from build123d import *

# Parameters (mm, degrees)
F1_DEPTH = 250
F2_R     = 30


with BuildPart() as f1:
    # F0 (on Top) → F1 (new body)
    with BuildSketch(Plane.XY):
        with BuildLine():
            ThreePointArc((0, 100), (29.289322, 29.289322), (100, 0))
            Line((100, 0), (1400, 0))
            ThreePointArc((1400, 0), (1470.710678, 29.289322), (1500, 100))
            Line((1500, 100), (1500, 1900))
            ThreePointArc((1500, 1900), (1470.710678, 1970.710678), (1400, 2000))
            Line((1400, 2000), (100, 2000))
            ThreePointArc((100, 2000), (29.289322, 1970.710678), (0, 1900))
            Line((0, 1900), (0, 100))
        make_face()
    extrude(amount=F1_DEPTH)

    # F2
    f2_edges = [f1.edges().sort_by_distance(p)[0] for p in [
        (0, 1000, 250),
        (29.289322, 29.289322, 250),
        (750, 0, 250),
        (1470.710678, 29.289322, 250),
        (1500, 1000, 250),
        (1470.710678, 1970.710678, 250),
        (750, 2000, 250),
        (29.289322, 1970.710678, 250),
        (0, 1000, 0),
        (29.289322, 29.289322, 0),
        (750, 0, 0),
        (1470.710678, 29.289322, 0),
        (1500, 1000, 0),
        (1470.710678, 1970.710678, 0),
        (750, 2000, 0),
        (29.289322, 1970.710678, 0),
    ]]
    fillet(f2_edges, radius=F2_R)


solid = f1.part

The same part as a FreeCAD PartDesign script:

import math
import FreeCAD as App
import Part
import Sketcher

V = App.Vector


def edges_at(feature, points):
    """Names of the edges that pass closest to the given points."""
    edges = feature.Shape.Edges
    near = lambda p: min(range(len(edges)), key=lambda i: edges[i].distToShape(Part.Vertex(*p))[0])
    return sorted({f"Edge{near(p) + 1}" for p in points})

doc = App.newDocument("Part")
body = doc.addObject("PartDesign::Body", "Body")

# Sketch on XY plane
sketch1 = doc.addObject("Sketcher::SketchObject", "Sketch")
body.addObject(sketch1)
sketch1.AttachmentSupport = (doc.XY_Plane, [""])
sketch1.MapMode = "FlatFace"
sketch1.addGeometry([
    Part.ArcOfCircle(Part.Circle(V(100, 100, 0), V(0, 0, 1), 100), math.radians(-180), math.radians(-90)),  # 0
    Part.LineSegment(V(100, 0, 0), V(1400, 0, 0)),  # 1
    Part.ArcOfCircle(Part.Circle(V(1400, 100, 0), V(0, 0, 1), 100), math.radians(-90), math.radians(0)),  # 2
    Part.LineSegment(V(1500, 100, 0), V(1500, 1900, 0)),  # 3
    Part.ArcOfCircle(Part.Circle(V(1400, 1900, 0), V(0, 0, 1), 100), math.radians(0), math.radians(90)),  # 4
    Part.LineSegment(V(1400, 2000, 0), V(100, 2000, 0)),  # 5
    Part.ArcOfCircle(Part.Circle(V(100, 1900, 0), V(0, 0, 1), 100), math.radians(90), math.radians(180)),  # 6
    Part.LineSegment(V(0, 1900, 0), V(0, 100, 0)),  # 7
], False)
sketch1.addConstraint([
    Sketcher.Constraint("Tangent", 0, 2, 1, 1),
    Sketcher.Constraint("Tangent", 1, 2, 2, 1),
    Sketcher.Constraint("Tangent", 2, 2, 3, 1),
    Sketcher.Constraint("Tangent", 3, 2, 4, 1),
    Sketcher.Constraint("Tangent", 4, 2, 5, 1),
    Sketcher.Constraint("Tangent", 5, 2, 6, 1),
    Sketcher.Constraint("Tangent", 6, 2, 7, 1),
    Sketcher.Constraint("Tangent", 7, 2, 0, 1),
    Sketcher.Constraint("Horizontal", 1),
    Sketcher.Constraint("Vertical", 3),
    Sketcher.Constraint("Horizontal", 5),
    Sketcher.Constraint("Vertical", 7),
    Sketcher.Constraint("Equal", 0, 2),
    Sketcher.Constraint("Equal", 2, 4),
    Sketcher.Constraint("Equal", 4, 6),
    Sketcher.Constraint("PointOnObject", 0, 2, -1),
    Sketcher.Constraint("PointOnObject", 6, 2, -2),
    Sketcher.Constraint("Radius", 0, 100.0),
    Sketcher.Constraint("DistanceX", 1, 1, 1, 2, 1300.0),
    Sketcher.Constraint("DistanceY", 3, 1, 3, 2, 1800.0),
])
pad1 = doc.addObject("PartDesign::Pad", "Pad")
body.addObject(pad1)
pad1.Profile = sketch1
pad1.Length = 250
doc.recompute()

fillet = doc.addObject("PartDesign::Fillet", "Fillet")
body.addObject(fillet)
fillet.Base = (pad1, edges_at(pad1, [
    (0, 1000, 250),
    (29.289, 29.289, 250),
    (750, 0, 250),
    (1470.711, 29.289, 250),
    (1500, 1000, 250),
    (1470.711, 1970.711, 250),
    (750, 2000, 250),
    (29.289, 1970.711, 250),
    (0, 1000, 0),
    (29.289, 29.289, 0),
    (750, 0, 0),
    (1470.711, 29.289, 0),
    (1500, 1000, 0),
    (1470.711, 1970.711, 0),
    (750, 2000, 0),
    (29.289, 1970.711, 0),
]))
fillet.Radius = 30

doc.recompute()
